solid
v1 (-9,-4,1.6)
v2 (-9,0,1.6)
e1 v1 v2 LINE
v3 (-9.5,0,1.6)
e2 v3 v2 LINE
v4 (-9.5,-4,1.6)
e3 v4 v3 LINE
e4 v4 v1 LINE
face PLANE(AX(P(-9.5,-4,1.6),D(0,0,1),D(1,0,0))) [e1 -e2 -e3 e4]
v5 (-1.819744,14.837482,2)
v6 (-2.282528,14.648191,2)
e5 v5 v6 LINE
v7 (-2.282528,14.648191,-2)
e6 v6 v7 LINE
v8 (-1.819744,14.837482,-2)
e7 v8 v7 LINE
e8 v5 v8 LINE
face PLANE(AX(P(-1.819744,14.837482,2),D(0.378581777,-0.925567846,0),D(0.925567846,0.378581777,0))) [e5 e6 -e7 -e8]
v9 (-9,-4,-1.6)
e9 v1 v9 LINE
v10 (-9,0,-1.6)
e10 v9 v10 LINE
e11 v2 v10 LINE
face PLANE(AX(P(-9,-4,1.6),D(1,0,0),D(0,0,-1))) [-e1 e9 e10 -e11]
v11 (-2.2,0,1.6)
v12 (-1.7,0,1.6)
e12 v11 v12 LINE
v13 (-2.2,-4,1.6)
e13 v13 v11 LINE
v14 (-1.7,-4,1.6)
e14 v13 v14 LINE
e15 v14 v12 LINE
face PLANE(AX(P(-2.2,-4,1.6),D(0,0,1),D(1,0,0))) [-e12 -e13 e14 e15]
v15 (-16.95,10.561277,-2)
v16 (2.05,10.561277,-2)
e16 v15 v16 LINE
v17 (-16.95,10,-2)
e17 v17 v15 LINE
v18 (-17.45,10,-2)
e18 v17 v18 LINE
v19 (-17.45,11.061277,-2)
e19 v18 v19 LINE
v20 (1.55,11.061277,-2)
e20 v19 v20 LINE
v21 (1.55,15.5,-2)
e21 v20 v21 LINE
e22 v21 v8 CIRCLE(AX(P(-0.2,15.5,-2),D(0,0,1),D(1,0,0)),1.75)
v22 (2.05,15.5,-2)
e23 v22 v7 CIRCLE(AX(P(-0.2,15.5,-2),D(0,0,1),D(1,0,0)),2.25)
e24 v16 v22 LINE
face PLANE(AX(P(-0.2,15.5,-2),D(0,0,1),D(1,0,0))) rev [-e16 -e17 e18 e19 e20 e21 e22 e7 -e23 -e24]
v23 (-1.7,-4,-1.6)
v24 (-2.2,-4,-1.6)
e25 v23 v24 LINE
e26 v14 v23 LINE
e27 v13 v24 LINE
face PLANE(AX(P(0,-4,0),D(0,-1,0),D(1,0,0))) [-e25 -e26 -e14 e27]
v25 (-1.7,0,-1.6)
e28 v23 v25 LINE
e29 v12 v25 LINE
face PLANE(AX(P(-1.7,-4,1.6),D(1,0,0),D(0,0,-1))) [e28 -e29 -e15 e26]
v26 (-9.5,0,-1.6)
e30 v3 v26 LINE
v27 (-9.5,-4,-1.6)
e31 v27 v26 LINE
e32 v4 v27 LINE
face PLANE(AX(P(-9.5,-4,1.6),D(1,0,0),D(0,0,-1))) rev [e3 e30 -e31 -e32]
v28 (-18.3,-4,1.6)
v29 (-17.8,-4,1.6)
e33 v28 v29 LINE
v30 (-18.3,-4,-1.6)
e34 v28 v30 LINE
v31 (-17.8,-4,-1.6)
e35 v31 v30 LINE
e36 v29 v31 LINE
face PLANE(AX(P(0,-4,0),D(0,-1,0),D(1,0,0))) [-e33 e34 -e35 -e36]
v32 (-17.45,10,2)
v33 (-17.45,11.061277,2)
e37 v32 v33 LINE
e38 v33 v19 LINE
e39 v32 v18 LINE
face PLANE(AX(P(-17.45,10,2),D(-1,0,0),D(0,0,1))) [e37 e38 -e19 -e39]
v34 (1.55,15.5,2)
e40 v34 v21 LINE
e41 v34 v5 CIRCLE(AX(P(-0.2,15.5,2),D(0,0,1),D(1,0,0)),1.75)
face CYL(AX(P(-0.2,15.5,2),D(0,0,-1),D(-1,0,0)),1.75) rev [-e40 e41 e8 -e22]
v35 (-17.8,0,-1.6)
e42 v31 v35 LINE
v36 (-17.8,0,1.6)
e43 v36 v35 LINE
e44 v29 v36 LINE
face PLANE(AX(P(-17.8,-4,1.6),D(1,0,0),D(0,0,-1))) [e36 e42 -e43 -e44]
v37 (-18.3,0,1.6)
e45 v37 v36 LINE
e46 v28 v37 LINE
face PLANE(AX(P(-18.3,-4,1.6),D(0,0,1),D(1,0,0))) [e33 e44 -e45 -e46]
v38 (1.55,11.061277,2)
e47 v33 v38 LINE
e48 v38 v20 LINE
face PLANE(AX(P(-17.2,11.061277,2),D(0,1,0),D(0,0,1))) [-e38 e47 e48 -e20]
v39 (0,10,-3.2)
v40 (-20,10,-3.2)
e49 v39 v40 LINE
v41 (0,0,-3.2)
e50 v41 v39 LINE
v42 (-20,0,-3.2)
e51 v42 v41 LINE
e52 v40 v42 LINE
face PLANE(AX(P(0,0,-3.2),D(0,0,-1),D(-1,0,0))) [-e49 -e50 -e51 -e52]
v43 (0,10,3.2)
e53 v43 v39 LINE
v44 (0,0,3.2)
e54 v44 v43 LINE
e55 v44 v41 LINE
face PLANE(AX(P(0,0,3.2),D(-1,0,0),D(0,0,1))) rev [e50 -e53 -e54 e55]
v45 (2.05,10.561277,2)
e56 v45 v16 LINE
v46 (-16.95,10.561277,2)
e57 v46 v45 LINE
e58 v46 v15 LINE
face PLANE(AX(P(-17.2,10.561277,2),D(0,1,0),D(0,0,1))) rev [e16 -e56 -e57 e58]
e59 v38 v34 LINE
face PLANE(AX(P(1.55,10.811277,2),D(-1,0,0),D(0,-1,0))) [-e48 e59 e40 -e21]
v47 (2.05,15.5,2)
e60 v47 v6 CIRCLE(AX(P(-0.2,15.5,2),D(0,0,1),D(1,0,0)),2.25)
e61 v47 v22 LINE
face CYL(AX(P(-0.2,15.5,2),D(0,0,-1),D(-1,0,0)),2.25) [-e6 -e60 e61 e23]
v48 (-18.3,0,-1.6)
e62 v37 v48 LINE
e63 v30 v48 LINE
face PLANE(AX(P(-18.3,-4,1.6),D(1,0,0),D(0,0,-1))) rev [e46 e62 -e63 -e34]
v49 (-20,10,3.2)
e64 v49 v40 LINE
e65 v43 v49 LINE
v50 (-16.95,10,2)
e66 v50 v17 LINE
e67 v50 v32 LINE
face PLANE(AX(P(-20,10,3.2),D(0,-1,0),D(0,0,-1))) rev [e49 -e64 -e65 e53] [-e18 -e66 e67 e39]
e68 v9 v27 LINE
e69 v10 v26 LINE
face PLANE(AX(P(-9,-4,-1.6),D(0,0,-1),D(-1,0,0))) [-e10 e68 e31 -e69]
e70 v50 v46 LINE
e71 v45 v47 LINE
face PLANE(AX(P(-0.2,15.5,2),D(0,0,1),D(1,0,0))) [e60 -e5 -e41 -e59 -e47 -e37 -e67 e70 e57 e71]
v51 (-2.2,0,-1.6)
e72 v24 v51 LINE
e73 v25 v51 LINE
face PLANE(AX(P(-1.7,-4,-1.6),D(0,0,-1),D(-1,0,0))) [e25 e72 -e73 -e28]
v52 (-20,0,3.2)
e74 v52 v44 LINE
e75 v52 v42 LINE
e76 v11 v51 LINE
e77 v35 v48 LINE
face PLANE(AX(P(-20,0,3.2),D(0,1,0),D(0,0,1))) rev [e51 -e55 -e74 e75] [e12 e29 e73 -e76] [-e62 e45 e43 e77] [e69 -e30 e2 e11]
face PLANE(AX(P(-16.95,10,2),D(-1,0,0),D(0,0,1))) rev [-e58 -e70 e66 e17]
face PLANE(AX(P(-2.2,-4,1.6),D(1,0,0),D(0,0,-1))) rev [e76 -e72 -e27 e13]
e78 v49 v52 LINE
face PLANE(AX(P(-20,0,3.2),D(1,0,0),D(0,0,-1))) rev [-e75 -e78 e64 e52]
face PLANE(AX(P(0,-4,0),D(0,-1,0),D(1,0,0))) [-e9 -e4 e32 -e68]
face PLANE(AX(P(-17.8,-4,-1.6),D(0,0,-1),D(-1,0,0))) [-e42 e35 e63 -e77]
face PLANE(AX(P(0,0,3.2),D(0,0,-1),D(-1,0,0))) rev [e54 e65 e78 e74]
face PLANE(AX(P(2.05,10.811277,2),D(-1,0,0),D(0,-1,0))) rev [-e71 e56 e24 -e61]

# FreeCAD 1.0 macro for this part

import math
import FreeCAD as App
import Part
import Sketcher

V = App.Vector
Q = App.Units.Quantity

doc = App.newDocument("Part")
body = doc.addObject("PartDesign::Body", "Body")

# Sketch on XY plane
sketch1 = body.newObject("Sketcher::SketchObject", "Sketch")
sketch1.AttachmentSupport = (doc.getObject("XY_Plane"), [""])
sketch1.MapMode = "FlatFace"
sketch1.addGeometry(Part.LineSegment(V(-20, 10, 0), V(-20, 0, 0)), False)
sketch1.addGeometry(Part.LineSegment(V(-20, 0, 0), V(0, 0, 0)), False)
sketch1.addGeometry(Part.LineSegment(V(0, 0, 0), V(0, 10, 0)), False)
sketch1.addGeometry(Part.LineSegment(V(0, 10, 0), V(-20, 10, 0)), False)
sketch1.addConstraint(Sketcher.Constraint("Coincident", 0, 2, 1, 1))
sketch1.addConstraint(Sketcher.Constraint("Coincident", 1, 2, 2, 1))
sketch1.addConstraint(Sketcher.Constraint("Coincident", 2, 2, 3, 1))
sketch1.addConstraint(Sketcher.Constraint("Coincident", 3, 2, 0, 1))
sketch1.addConstraint(Sketcher.Constraint("Vertical", 0))
sketch1.addConstraint(Sketcher.Constraint("Horizontal", 1))
sketch1.addConstraint(Sketcher.Constraint("Vertical", 2))
sketch1.addConstraint(Sketcher.Constraint("Horizontal", 3))
sketch1.addConstraint(Sketcher.Constraint("Coincident", 1, 2, -1, 1))
sketch1.addConstraint(Sketcher.Constraint("DistanceX", 1, 1, 1, 2, Q("20 mm")))
sketch1.addConstraint(Sketcher.Constraint("DistanceY", 0, 2, 0, 1, Q("10 mm")))
pad1 = body.newObject("PartDesign::Pad", "Pad")
pad1.Profile = sketch1
pad1.Length = 6.4
pad1.Midplane = True

# Sketch on XZ plane
sketch2 = body.newObject("Sketcher::SketchObject", "Sketch001")
sketch2.AttachmentSupport = (doc.getObject("XZ_Plane"), [""])
sketch2.MapMode = "FlatFace"
sketch2.addGeometry(Part.LineSegment(V(-18.3, 1.6, 0), V(-18.3, -1.6, 0)), False)
sketch2.addGeometry(Part.LineSegment(V(-18.3, -1.6, 0), V(-17.8, -1.6, 0)), False)
sketch2.addGeometry(Part.LineSegment(V(-17.8, -1.6, 0), V(-17.8, 1.6, 0)), False)
sketch2.addGeometry(Part.LineSegment(V(-17.8, 1.6, 0), V(-18.3, 1.6, 0)), False)
sketch2.addGeometry(Part.LineSegment(V(-9.5, 1.6, 0), V(-9.5, -1.6, 0)), False)
sketch2.addGeometry(Part.LineSegment(V(-9.5, -1.6, 0), V(-9, -1.6, 0)), False)
sketch2.addGeometry(Part.LineSegment(V(-9, -1.6, 0), V(-9, 1.6, 0)), False)
sketch2.addGeometry(Part.LineSegment(V(-9, 1.6, 0), V(-9.5, 1.6, 0)), False)
sketch2.addGeometry(Part.LineSegment(V(-2.2, 1.6, 0), V(-2.2, -1.6, 0)), False)
sketch2.addGeometry(Part.LineSegment(V(-2.2, -1.6, 0), V(-1.7, -1.6, 0)), False)
sketch2.addGeometry(Part.LineSegment(V(-1.7, -1.6, 0), V(-1.7, 1.6, 0)), False)
sketch2.addGeometry(Part.LineSegment(V(-1.7, 1.6, 0), V(-2.2, 1.6, 0)), False)
sketch2.addConstraint(Sketcher.Constraint("Coincident", 0, 2, 1, 1))
sketch2.addConstraint(Sketcher.Constraint("Coincident", 1, 2, 2, 1))
sketch2.addConstraint(Sketcher.Constraint("Coincident", 2, 2, 3, 1))
sketch2.addConstraint(Sketcher.Constraint("Coincident", 3, 2, 0, 1))
sketch2.addConstraint(Sketcher.Constraint("Coincident", 4, 2, 5, 1))
sketch2.addConstraint(Sketcher.Constraint("Coincident", 5, 2, 6, 1))
sketch2.addConstraint(Sketcher.Constraint("Coincident", 6, 2, 7, 1))
sketch2.addConstraint(Sketcher.Constraint("Coincident", 7, 2, 4, 1))
sketch2.addConstraint(Sketcher.Constraint("Coincident", 8, 2, 9, 1))
sketch2.addConstraint(Sketcher.Constraint("Coincident", 9, 2, 10, 1))
sketch2.addConstraint(Sketcher.Constraint("Coincident", 10, 2, 11, 1))
sketch2.addConstraint(Sketcher.Constraint("Coincident", 11, 2, 8, 1))
sketch2.addConstraint(Sketcher.Constraint("Vertical", 0))
sketch2.addConstraint(Sketcher.Constraint("Horizontal", 1))
sketch2.addConstraint(Sketcher.Constraint("Vertical", 2))
sketch2.addConstraint(Sketcher.Constraint("Horizontal", 3))
sketch2.addConstraint(Sketcher.Constraint("Vertical", 4))
sketch2.addConstraint(Sketcher.Constraint("Horizontal", 5))
sketch2.addConstraint(Sketcher.Constraint("Vertical", 6))
sketch2.addConstraint(Sketcher.Constraint("Horizontal", 7))
sketch2.addConstraint(Sketcher.Constraint("Vertical", 8))
sketch2.addConstraint(Sketcher.Constraint("Horizontal", 9))
sketch2.addConstraint(Sketcher.Constraint("Vertical", 10))
sketch2.addConstraint(Sketcher.Constraint("Horizontal", 11))
sketch2.addConstraint(Sketcher.Constraint("Horizontal", 1, 2, 4, 2))
sketch2.addConstraint(Sketcher.Constraint("Horizontal", 3, 2, 6, 2))
sketch2.addConstraint(Sketcher.Constraint("Horizontal", 5, 2, 8, 2))
sketch2.addConstraint(Sketcher.Constraint("Horizontal", 7, 2, 10, 2))
sketch2.addConstraint(Sketcher.Constraint("Equal", 3, 5))
sketch2.addConstraint(Sketcher.Constraint("Equal", 7, 9))
sketch2.addConstraint(Sketcher.Constraint("DistanceX", 1, 1, 1, 2, Q("0.5 mm")))
sketch2.addConstraint(Sketcher.Constraint("DistanceY", 0, 2, 0, 1, Q("3.2 mm")))
sketch2.addConstraint(Sketcher.Constraint("DistanceX", 5, 2, -1, 1, Q("9 mm")))
sketch2.addConstraint(Sketcher.Constraint("DistanceX", 0, 2, -1, 1, Q("18.3 mm")))
sketch2.addConstraint(Sketcher.Constraint("DistanceY", 0, 2, -1, 1, Q("1.6 mm")))
sketch2.addConstraint(Sketcher.Constraint("DistanceX", 8, 2, -1, 1, Q("2.2 mm")))
pad2 = body.newObject("PartDesign::Pad", "Pad001")
pad2.Profile = sketch2
pad2.Length = 4

# Sketch on XY plane
sketch3 = body.newObject("Sketcher::SketchObject", "Sketch002")
sketch3.AttachmentSupport = (doc.getObject("XY_Plane"), [""])
sketch3.MapMode = "FlatFace"
sketch3.addGeometry(Part.LineSegment(V(-16.95, 10, 0), V(-16.95, 10.561277, 0)), False)
sketch3.addGeometry(Part.LineSegment(V(-16.95, 10.561277, 0), V(2.05, 10.561277, 0)), False)
sketch3.addGeometry(Part.LineSegment(V(2.05, 10.561277, 0), V(2.05, 15.5, 0)), False)
sketch3.addGeometry(Part.ArcOfCircle(Part.Circle(V(-0.2, 15.5, 0), V(0, 0, 1), 2.25), math.radians(0), math.radians(202.245862)), False)
sketch3.addGeometry(Part.LineSegment(V(-2.282528, 14.648191, 0), V(-1.819744, 14.837482, 0)), False)
sketch3.addGeometry(Part.ArcOfCircle(Part.Circle(V(-0.2, 15.5, 0), V(0, 0, 1), 1.75), math.radians(0), math.radians(202.245862)), False)
sketch3.addGeometry(Part.LineSegment(V(1.55, 15.5, 0), V(1.55, 11.061277, 0)), False)
sketch3.addGeometry(Part.LineSegment(V(1.55, 11.061277, 0), V(-17.45, 11.061277, 0)), False)
sketch3.addGeometry(Part.LineSegment(V(-17.45, 11.061277, 0), V(-17.45, 10, 0)), False)
sketch3.addGeometry(Part.LineSegment(V(-17.45, 10, 0), V(-16.95, 10, 0)), False)
sketch3.addConstraint(Sketcher.Constraint("Coincident", 0, 2, 1, 1))
sketch3.addConstraint(Sketcher.Constraint("Coincident", 1, 2, 2, 1))
sketch3.addConstraint(Sketcher.Constraint("Tangent", 2, 2, 3, 1))
sketch3.addConstraint(Sketcher.Constraint("Coincident", 3, 2, 4, 1))
sketch3.addConstraint(Sketcher.Constraint("Coincident", 4, 2, 5, 2))
sketch3.addConstraint(Sketcher.Constraint("Tangent", 5, 1, 6, 1))
sketch3.addConstraint(Sketcher.Constraint("Coincident", 6, 2, 7, 1))
sketch3.addConstraint(Sketcher.Constraint("Coincident", 7, 2, 8, 1))
sketch3.addConstraint(Sketcher.Constraint("Coincident", 8, 2, 9, 1))
sketch3.addConstraint(Sketcher.Constraint("Coincident", 9, 2, 0, 1))
sketch3.addConstraint(Sketcher.Constraint("Vertical", 0))
sketch3.addConstraint(Sketcher.Constraint("Horizontal", 1))
sketch3.addConstraint(Sketcher.Constraint("Vertical", 2))
sketch3.addConstraint(Sketcher.Constraint("Vertical", 6))
sketch3.addConstraint(Sketcher.Constraint("Horizontal", 7))
sketch3.addConstraint(Sketcher.Constraint("Vertical", 8))
sketch3.addConstraint(Sketcher.Constraint("Horizontal", 9))
sketch3.addConstraint(Sketcher.Constraint("Coincident", 5, 3, 3, 3))
sketch3.addConstraint(Sketcher.Constraint("Equal", 1, 7))
sketch3.addConstraint(Sketcher.Constraint("DistanceX", 1, 1, 1, 2, Q("19 mm")))
sketch3.addConstraint(Sketcher.Constraint("Radius", 3, Q("2.25 mm")))
sketch3.addConstraint(Sketcher.Constraint("Radius", 5, Q("1.75 mm")))
sketch3.addConstraint(Sketcher.Constraint("DistanceY", -1, 1, 8, 2, Q("10 mm")))
sketch3.addConstraint(Sketcher.Constraint("DistanceX", 3, 3, -1, 1, Q("0.2 mm")))
sketch3.addConstraint(Sketcher.Constraint("DistanceY", -1, 1, 3, 3, Q("15.5 mm")))
sketch3.addConstraint(Sketcher.Constraint("DistanceY", 1, 2, 6, 2, Q("0.5 mm")))
sketch3.addConstraint(Sketcher.Constraint("DistanceY", 0, 1, 0, 2, Q("0.561277 mm")))
sketch3.addConstraint(Sketcher.Constraint("DistanceY", -1, 1, 3, 2, Q("14.648191 mm")))
sketch3.addConstraint(Sketcher.Constraint("DistanceY", -1, 1, 4, 2, Q("14.837482 mm")))
pad3 = body.newObject("PartDesign::Pad", "Pad002")
pad3.Profile = sketch3
pad3.Length = 4
pad3.Midplane = True

doc.recompute()
